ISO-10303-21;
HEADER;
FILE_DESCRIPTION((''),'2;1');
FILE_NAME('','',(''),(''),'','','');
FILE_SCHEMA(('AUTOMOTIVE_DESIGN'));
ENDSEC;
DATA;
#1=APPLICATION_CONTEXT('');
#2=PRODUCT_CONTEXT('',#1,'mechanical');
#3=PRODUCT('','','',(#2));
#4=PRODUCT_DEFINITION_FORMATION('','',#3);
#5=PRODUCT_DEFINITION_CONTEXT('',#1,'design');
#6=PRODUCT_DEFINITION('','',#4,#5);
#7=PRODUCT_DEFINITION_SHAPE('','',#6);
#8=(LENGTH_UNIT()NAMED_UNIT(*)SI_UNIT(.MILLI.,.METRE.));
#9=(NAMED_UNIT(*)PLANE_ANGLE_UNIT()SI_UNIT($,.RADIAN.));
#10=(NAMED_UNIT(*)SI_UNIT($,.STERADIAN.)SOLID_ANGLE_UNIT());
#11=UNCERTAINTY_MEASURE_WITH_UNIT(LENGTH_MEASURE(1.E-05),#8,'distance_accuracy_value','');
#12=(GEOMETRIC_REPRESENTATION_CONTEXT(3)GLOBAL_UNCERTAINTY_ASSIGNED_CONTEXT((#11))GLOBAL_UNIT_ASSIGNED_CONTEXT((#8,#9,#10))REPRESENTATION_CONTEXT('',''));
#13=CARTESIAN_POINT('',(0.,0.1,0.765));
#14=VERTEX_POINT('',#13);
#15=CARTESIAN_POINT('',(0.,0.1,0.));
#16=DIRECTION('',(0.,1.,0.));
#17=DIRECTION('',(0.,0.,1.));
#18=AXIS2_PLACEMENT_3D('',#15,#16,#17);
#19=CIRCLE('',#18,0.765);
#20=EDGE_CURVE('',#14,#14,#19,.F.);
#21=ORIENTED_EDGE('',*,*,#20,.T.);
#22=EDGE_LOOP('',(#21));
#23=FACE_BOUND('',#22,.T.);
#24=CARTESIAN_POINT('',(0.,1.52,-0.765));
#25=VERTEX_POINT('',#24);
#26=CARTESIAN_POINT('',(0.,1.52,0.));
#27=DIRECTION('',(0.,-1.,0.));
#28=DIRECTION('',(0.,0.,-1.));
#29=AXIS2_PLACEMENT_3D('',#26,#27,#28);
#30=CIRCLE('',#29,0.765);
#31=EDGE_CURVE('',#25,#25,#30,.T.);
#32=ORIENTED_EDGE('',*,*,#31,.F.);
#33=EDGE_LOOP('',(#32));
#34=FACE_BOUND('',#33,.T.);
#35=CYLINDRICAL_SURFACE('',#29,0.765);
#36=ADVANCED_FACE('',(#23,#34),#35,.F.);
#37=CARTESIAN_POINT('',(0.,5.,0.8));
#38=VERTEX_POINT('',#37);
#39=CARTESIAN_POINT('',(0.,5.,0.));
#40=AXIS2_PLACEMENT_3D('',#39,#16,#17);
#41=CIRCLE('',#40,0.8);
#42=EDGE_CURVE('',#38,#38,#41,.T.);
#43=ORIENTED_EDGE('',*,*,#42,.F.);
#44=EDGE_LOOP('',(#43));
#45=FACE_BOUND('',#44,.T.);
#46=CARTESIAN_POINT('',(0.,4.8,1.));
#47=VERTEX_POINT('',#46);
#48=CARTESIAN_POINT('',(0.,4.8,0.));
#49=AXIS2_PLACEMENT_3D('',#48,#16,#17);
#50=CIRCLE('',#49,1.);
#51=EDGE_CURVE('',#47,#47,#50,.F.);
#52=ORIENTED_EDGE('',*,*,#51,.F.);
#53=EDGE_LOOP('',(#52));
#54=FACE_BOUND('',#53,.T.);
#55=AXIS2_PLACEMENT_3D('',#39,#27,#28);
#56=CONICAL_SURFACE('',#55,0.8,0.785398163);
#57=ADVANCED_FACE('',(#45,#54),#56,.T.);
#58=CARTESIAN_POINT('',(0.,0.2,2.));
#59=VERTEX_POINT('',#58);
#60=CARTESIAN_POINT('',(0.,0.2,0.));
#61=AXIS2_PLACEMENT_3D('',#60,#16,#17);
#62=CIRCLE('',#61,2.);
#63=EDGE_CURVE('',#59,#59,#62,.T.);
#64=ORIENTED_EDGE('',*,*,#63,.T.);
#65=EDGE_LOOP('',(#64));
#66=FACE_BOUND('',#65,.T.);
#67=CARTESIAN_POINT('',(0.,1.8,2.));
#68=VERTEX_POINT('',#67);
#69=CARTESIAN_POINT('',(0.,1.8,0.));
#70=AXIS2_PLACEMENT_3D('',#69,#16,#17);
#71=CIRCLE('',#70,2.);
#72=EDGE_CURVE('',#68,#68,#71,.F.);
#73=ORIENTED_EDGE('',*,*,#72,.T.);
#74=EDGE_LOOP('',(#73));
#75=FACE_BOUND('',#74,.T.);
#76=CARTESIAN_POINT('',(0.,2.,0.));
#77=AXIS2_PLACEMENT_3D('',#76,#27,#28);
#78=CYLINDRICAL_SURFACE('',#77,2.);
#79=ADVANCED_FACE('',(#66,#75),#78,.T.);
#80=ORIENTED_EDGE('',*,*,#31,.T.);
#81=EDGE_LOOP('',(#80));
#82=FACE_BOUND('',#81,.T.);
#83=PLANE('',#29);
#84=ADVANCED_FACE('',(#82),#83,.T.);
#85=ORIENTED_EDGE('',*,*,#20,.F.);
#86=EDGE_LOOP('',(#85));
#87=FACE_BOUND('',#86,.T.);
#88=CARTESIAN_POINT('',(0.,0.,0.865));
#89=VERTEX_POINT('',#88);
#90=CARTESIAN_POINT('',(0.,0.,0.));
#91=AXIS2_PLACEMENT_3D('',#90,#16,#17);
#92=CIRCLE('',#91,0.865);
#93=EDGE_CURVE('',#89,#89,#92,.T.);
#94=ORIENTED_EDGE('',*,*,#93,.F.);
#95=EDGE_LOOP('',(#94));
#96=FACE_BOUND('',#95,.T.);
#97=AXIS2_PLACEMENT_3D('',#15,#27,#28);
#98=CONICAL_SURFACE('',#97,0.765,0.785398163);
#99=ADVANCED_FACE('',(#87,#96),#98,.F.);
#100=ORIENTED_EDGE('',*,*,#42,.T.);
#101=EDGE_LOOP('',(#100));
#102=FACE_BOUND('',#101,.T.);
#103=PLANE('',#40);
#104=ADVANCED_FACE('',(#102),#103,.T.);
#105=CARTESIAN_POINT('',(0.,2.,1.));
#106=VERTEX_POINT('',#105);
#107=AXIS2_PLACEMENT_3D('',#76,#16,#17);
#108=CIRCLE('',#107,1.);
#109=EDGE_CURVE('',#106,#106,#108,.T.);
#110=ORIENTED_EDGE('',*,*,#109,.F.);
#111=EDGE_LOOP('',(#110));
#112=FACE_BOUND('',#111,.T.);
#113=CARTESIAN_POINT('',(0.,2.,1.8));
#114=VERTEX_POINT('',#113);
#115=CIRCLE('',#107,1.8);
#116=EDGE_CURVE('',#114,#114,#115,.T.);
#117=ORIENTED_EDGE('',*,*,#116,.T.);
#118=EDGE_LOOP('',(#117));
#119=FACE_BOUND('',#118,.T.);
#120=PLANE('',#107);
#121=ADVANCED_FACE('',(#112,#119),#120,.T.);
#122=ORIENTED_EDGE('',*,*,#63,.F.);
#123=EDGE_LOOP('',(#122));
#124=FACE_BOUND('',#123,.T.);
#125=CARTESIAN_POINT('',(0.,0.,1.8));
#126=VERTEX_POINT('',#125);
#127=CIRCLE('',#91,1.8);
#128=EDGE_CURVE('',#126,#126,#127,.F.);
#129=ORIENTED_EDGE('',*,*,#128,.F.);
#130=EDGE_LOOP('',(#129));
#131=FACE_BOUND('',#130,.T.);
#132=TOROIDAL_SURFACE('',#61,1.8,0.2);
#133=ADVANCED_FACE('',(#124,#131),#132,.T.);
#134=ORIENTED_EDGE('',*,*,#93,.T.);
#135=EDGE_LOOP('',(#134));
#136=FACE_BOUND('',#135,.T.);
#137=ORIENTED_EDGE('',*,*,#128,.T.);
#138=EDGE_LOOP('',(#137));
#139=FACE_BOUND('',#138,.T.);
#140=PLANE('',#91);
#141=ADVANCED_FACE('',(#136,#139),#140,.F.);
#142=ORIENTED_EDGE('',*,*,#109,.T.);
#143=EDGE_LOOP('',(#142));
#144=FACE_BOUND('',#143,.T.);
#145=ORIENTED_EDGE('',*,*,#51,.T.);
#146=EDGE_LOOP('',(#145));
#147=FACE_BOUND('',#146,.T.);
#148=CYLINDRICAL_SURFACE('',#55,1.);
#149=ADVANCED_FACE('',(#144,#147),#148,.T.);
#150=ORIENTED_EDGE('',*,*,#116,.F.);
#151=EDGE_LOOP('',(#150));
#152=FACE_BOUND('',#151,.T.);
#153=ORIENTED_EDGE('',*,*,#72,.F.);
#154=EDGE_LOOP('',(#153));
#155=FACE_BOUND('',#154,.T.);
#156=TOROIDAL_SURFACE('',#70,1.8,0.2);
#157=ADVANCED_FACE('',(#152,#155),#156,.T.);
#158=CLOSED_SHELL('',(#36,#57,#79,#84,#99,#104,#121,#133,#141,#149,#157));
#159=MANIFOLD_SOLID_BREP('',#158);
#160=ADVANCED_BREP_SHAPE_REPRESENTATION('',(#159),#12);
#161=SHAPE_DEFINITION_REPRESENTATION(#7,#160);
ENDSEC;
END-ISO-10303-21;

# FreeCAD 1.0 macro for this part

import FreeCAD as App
import Part
import Sketcher
from FreeCAD import Vector
Q = App.Units.Quantity


def edges_at(feature, points):
    """Names of the edges that pass closest to the given points."""
    edges = feature.Shape.Edges
    near = lambda p: min(range(len(edges)), key=lambda i: edges[i].distToShape(Part.Vertex(*p))[0])
    return sorted({f"Edge{near(p) + 1}" for p in points})

doc = App.newDocument("Part")
body = doc.addObject("PartDesign::Body", "Body")

# Sketch on XZ plane
sketch1 = body.newObject("Sketcher::SketchObject", "Sketch")
sketch1.AttachmentSupport = (doc.getObject("XZ_Plane"), [""])
sketch1.MapMode = "FlatFace"
sketch1.addGeometry(Part.Circle(Vector(0, 0, 0), Vector(0, 0, 1), 2), False)
sketch1.addConstraint([
    Sketcher.Constraint("Coincident", 0, 3, -1, 1),
    Sketcher.Constraint("Diameter", 0, Q("4 mm")),
])
pad1 = body.newObject("PartDesign::Pad", "Pad")
pad1.Profile = sketch1
pad1.Length = 2
pad1.Reversed = True

# Sketch on XZ plane
sketch2 = body.newObject("Sketcher::SketchObject", "Sketch001")
sketch2.AttachmentSupport = (doc.getObject("XZ_Plane"), [""])
sketch2.MapMode = "FlatFace"
sketch2.AttachmentOffset = App.Placement(Vector(0, 0, -2), App.Rotation())
sketch2.addGeometry(Part.Circle(Vector(0, 0, 0), Vector(0, 0, 1), 1), False)
sketch2.addConstraint([
    Sketcher.Constraint("Coincident", 0, 3, -1, 1),
    Sketcher.Constraint("Diameter", 0, Q("2 mm")),
])
pad2 = body.newObject("PartDesign::Pad", "Pad001")
pad2.Profile = sketch2
pad2.Length = 3
pad2.Reversed = True
doc.recompute()

fillet = body.newObject("PartDesign::Fillet", "Fillet")
fillet.Base = (pad2, edges_at(pad2, [(0, 0, -2), (0, 2, -2)]))
fillet.Radius = 0.2

# Sketch on XZ plane
sketch3 = body.newObject("Sketcher::SketchObject", "Sketch002")
sketch3.AttachmentSupport = (doc.getObject("XZ_Plane"), [""])
sketch3.MapMode = "FlatFace"
sketch3.addGeometry(Part.Circle(Vector(0, 0, 0), Vector(0, 0, 1), 0.8), False)
sketch3.addConstraint([
    Sketcher.Constraint("Coincident", 0, 3, -1, 1),
    Sketcher.Constraint("Diameter", 0, Q("1.53 mm")),
])
pocket1 = body.newObject("PartDesign::Pocket", "Pocket")
pocket1.Profile = sketch3
pocket1.Length = 1.52
doc.recompute()

chamfer = body.newObject("PartDesign::Chamfer", "Chamfer")
chamfer.Base = (pocket1, edges_at(pocket1, [(0, 0, 0.765)]))
chamfer.Size = 0.1
doc.recompute()

chamfer2 = body.newObject("PartDesign::Chamfer", "Chamfer001")
chamfer2.Base = (chamfer, edges_at(chamfer, [(0, 5, -1)]))
chamfer2.Size = 0.2

doc.recompute()
